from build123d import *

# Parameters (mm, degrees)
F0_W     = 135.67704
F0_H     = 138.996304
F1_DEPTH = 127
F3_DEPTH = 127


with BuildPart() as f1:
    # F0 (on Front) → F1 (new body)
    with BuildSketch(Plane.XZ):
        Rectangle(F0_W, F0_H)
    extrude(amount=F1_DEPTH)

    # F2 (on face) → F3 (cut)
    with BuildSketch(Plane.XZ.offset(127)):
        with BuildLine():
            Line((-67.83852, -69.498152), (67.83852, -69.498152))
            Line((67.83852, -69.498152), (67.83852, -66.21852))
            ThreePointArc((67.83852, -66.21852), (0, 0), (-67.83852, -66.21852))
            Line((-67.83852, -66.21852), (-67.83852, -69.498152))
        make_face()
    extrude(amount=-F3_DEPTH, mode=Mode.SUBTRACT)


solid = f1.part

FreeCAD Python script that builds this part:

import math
import FreeCAD as App
import Part
import Sketcher
Q = App.Units.Quantity


def add_polygon(sketch, points):
    """Adds a closed chain of lines whose ends are joined by coincident constraints."""
    first, n = sketch.GeometryCount, len(points)
    for a, b in zip(points, points[1:] + points[:1]):
        sketch.addGeometry(Part.LineSegment(App.Vector(*a, 0), App.Vector(*b, 0)), False)
    for i in range(n):
        sketch.addConstraint(Sketcher.Constraint("Coincident", first + i, 2, first + (i + 1) % n, 1))

doc = App.newDocument("Part")
body = doc.addObject("PartDesign::Body", "Body")

sketch1 = body.newObject("Sketcher::SketchObject", "Sketch")
sketch1.AttachmentSupport = (doc.getObject("XZ_Plane"), [""])
sketch1.MapMode = "FlatFace"
add_polygon(sketch1, [(-68, 69), (-68, -69), (68, -69), (68, 69)])
sketch1.addConstraint([
    Sketcher.Constraint("Vertical", 0),
    Sketcher.Constraint("Horizontal", 1),
    Sketcher.Constraint("Vertical", 2),
    Sketcher.Constraint("Horizontal", 3),
    Sketcher.Constraint("Symmetric", 0, 2, 2, 2, -1, 1),
    Sketcher.Constraint("DistanceX", 1, 1, 1, 2, Q("135.67704 mm")),
    Sketcher.Constraint("DistanceY", 0, 2, 0, 1, Q("138.996304 mm")),
])
pad1 = body.newObject("PartDesign::Pad", "Pad")
pad1.Profile = sketch1
pad1.Length = Q("5 in")

sketch2 = body.newObject("Sketcher::SketchObject", "Sketch001")
sketch2.AttachmentSupport = (doc.getObject("XZ_Plane"), [""])
sketch2.MapMode = "FlatFace"
sketch2.AttachmentOffset = App.Placement(App.Vector(0, 0, 5 * 25.4), App.Rotation())
sketch2.addGeometry([
    Part.LineSegment(App.Vector(-67.8, -69.5, 0), App.Vector(67.8, -69.5, 0)),
    Part.LineSegment(App.Vector(67.8, -69.5, 0), App.Vector(67.8, -66.2, 0)),
    Part.ArcOfCircle(Part.Circle(App.Vector(0, -67.9, 0), App.Vector(0, 0, 1), 67.9), math.radians(1), math.radians(179)),
    Part.LineSegment(App.Vector(-67.8, -66.2, 0), App.Vector(-67.8, -69.5, 0)),
], False)
sketch2.addConstraint([
    Sketcher.Constraint("Coincident", 0, 2, 1, 1),
    Sketcher.Constraint("Coincident", 1, 2, 2, 1),
    Sketcher.Constraint("Coincident", 2, 2, 3, 1),
    Sketcher.Constraint("Coincident", 3, 2, 0, 1),
    Sketcher.Constraint("Horizontal", 0),
    Sketcher.Constraint("Vertical", 1),
    Sketcher.Constraint("Vertical", 3),
    Sketcher.Constraint("Symmetric", 1, 2, 2, 2, -2),
    Sketcher.Constraint("Radius", 2, Q("67.858336 mm")),
    Sketcher.Constraint("DistanceX", 0, 1, 0, 2, Q("135.67704 mm")),
    Sketcher.Constraint("DistanceY", 1, 1, 1, 2, Q("3.279632 mm")),
    Sketcher.Constraint("DistanceY", 1, 2, -1, 1, Q("66.21852 mm")),
])
pocket1 = body.newObject("PartDesign::Pocket", "Pocket")
pocket1.Profile = sketch2
pocket1.Length = Q("5 in")

doc.recompute()
